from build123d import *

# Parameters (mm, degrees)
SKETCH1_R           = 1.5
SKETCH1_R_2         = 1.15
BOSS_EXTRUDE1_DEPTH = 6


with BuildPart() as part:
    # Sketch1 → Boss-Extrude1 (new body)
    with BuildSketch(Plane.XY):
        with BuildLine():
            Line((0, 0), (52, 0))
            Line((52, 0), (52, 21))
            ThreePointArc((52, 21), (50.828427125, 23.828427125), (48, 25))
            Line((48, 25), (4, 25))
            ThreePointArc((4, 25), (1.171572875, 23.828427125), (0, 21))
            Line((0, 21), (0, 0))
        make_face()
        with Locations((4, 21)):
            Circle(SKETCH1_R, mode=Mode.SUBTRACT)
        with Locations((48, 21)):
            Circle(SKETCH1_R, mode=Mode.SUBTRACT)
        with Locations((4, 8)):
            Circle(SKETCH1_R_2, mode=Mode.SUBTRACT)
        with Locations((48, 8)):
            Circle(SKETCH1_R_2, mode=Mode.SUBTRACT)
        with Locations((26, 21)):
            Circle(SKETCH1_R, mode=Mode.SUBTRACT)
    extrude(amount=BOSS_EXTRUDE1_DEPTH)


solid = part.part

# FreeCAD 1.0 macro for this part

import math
import FreeCAD as App
import Part
import Sketcher
Q = App.Units.Quantity

doc = App.newDocument("Part")
body = doc.addObject("PartDesign::Body", "Body")

# Sketch on XY plane
sketch1 = body.newObject("Sketcher::SketchObject", "Sketch")
sketch1.AttachmentSupport = (doc.getObject("XY_Plane"), [""])
sketch1.MapMode = "FlatFace"
sketch1.addGeometry(Part.LineSegment(App.Vector(0, 0, 0), App.Vector(52, 0, 0)), False)
sketch1.addGeometry(Part.LineSegment(App.Vector(52, 0, 0), App.Vector(52, 21, 0)), False)
sketch1.addGeometry(Part.ArcOfCircle(Part.Circle(App.Vector(48, 21, 0), App.Vector(0, 0, 1), 4), math.radians(0), math.radians(90)), False)
sketch1.addGeometry(Part.LineSegment(App.Vector(48, 25, 0), App.Vector(4, 25, 0)), False)
sketch1.addGeometry(Part.ArcOfCircle(Part.Circle(App.Vector(4, 21, 0), App.Vector(0, 0, 1), 4), math.radians(90), math.radians(180)), False)
sketch1.addGeometry(Part.LineSegment(App.Vector(0, 21, 0), App.Vector(0, 0, 0)), False)
sketch1.addGeometry(Part.Circle(App.Vector(4, 8, 0), App.Vector(0, 0, 1), 1.15), False)
sketch1.addGeometry(Part.Circle(App.Vector(48, 8, 0), App.Vector(0, 0, 1), 1.15), False)
sketch1.addGeometry(Part.Circle(App.Vector(4, 21, 0), App.Vector(0, 0, 1), 1.5), False)
sketch1.addGeometry(Part.Circle(App.Vector(26, 21, 0), App.Vector(0, 0, 1), 1.5), False)
sketch1.addGeometry(Part.Circle(App.Vector(48, 21, 0), App.Vector(0, 0, 1), 1.5), False)
sketch1.addConstraint(Sketcher.Constraint("Coincident", 0, 2, 1, 1))
sketch1.addConstraint(Sketcher.Constraint("Tangent", 1, 2, 2, 1))
sketch1.addConstraint(Sketcher.Constraint("Tangent", 2, 2, 3, 1))
sketch1.addConstraint(Sketcher.Constraint("Tangent", 3, 2, 4, 1))
sketch1.addConstraint(Sketcher.Constraint("Tangent", 4, 2, 5, 1))
sketch1.addConstraint(Sketcher.Constraint("Coincident", 5, 2, 0, 1))
sketch1.addConstraint(Sketcher.Constraint("Horizontal", 0))
sketch1.addConstraint(Sketcher.Constraint("Vertical", 1))
sketch1.addConstraint(Sketcher.Constraint("Horizontal", 3))
sketch1.addConstraint(Sketcher.Constraint("Vertical", 5))
sketch1.addConstraint(Sketcher.Constraint("Coincident", 5, 2, -1, 1))
sketch1.addConstraint(Sketcher.Constraint("Coincident", 8, 3, 4, 3))
sketch1.addConstraint(Sketcher.Constraint("Coincident", 10, 3, 2, 3))
sketch1.addConstraint(Sketcher.Constraint("Equal", 2, 4))
sketch1.addConstraint(Sketcher.Constraint("Equal", 6, 7))
sketch1.addConstraint(Sketcher.Constraint("Equal", 8, 9))
sketch1.addConstraint(Sketcher.Constraint("Equal", 9, 10))
sketch1.addConstraint(Sketcher.Constraint("Horizontal", 6, 3, 7, 3))
sketch1.addConstraint(Sketcher.Constraint("Horizontal", 8, 3, 9, 3))
sketch1.addConstraint(Sketcher.Constraint("Vertical", 4, 3, 6, 3))
sketch1.addConstraint(Sketcher.Constraint("Vertical", 2, 3, 7, 3))
sketch1.addConstraint(Sketcher.Constraint("Diameter", 8, Q("3 mm")))
sketch1.addConstraint(Sketcher.Constraint("Radius", 2, Q("4 mm")))
sketch1.addConstraint(Sketcher.Constraint("Diameter", 6, Q("2.3 mm")))
sketch1.addConstraint(Sketcher.Constraint("DistanceX", 0, 1, 0, 2, Q("52 mm")))
sketch1.addConstraint(Sketcher.Constraint("DistanceY", 1, 1, 1, 2, Q("21 mm")))
sketch1.addConstraint(Sketcher.Constraint("DistanceY", -1, 1, 6, 3, Q("8 mm")))
sketch1.addConstraint(Sketcher.Constraint("DistanceX", -1, 1, 9, 3, Q("26 mm")))
pad1 = body.newObject("PartDesign::Pad", "Pad")
pad1.Profile = sketch1
pad1.Length = 6

doc.recompute()
